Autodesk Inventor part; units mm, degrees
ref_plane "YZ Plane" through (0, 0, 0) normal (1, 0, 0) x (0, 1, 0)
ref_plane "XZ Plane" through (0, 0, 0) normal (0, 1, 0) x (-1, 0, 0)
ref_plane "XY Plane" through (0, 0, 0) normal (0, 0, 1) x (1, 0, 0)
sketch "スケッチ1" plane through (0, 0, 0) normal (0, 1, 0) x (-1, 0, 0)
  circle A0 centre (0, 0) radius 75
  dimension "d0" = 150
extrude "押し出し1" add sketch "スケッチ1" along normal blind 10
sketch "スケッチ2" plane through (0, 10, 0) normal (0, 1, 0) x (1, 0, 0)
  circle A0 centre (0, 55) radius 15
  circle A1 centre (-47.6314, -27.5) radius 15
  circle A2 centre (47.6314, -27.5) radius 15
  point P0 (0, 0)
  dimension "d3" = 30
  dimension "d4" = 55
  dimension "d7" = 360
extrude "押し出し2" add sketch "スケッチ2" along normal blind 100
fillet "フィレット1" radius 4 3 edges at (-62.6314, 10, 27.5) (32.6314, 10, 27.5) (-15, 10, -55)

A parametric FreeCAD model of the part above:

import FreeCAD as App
import Part
import Sketcher

V = App.Vector
Q = App.Units.Quantity


def edges_at(feature, points):
    """Names of the edges that pass closest to the given points."""
    edges = feature.Shape.Edges
    near = lambda p: min(range(len(edges)), key=lambda i: edges[i].distToShape(Part.Vertex(*p))[0])
    return sorted({f"Edge{near(p) + 1}" for p in points})

doc = App.newDocument("Part")
body = doc.addObject("PartDesign::Body", "Body")

sketch1 = doc.addObject("Sketcher::SketchObject", "Sketch")
body.addObject(sketch1)
sketch1.AttachmentSupport = (doc.XZ_Plane, [""])
sketch1.MapMode = "FlatFace"
sketch1.addGeometry(Part.Circle(V(0, 0, 0), V(0, 0, 1), 75), False)
sketch1.addConstraint([
    Sketcher.Constraint("Coincident", 0, 3, -1, 1),
    Sketcher.Constraint("Diameter", 0, Q("150 mm")),
])
pad1 = doc.addObject("PartDesign::Pad", "Pad")
body.addObject(pad1)
pad1.Profile = sketch1
pad1.Length = 10
pad1.Reversed = True

sketch2 = doc.addObject("Sketcher::SketchObject", "Sketch001")
body.addObject(sketch2)
sketch2.AttachmentSupport = (doc.XZ_Plane, [""])
sketch2.MapMode = "FlatFace"
sketch2.AttachmentOffset = App.Placement(V(0, 0, -10), App.Rotation())
sketch2.addGeometry([
    Part.Circle(V(0, -55, 0), V(0, 0, 1), 15),
    Part.Circle(V(-48, 28, 0), V(0, 0, 1), 15),
    Part.Circle(V(48, 28, 0), V(0, 0, 1), 15),
], False)
sketch2.addConstraint([
    Sketcher.Constraint("Equal", 0, 1),
    Sketcher.Constraint("Equal", 1, 2),
    Sketcher.Constraint("Symmetric", 1, 3, 2, 3, -2),
    Sketcher.Constraint("PointOnObject", 0, 3, -2),
    Sketcher.Constraint("Diameter", 0, Q("30 mm")),
    Sketcher.Constraint("DistanceY", 0, 3, -1, 1, Q("55 mm")),
    Sketcher.Constraint("DistanceY", -1, 1, 1, 3, Q("27.5 mm")),
    Sketcher.Constraint("DistanceX", 1, 3, -1, 1, Q("47.6314 mm")),
])
pad2 = doc.addObject("PartDesign::Pad", "Pad001")
body.addObject(pad2)
pad2.Profile = sketch2
pad2.Length = 100
pad2.Reversed = True
doc.recompute()

fillet = doc.addObject("PartDesign::Fillet", "Fillet")
body.addObject(fillet)
fillet.Base = (pad2, edges_at(pad2, [(-62.631, 10, 27.5), (32.631, 10, 27.5), (-15, 10, -55)]))
fillet.Radius = 4

doc.recompute()
